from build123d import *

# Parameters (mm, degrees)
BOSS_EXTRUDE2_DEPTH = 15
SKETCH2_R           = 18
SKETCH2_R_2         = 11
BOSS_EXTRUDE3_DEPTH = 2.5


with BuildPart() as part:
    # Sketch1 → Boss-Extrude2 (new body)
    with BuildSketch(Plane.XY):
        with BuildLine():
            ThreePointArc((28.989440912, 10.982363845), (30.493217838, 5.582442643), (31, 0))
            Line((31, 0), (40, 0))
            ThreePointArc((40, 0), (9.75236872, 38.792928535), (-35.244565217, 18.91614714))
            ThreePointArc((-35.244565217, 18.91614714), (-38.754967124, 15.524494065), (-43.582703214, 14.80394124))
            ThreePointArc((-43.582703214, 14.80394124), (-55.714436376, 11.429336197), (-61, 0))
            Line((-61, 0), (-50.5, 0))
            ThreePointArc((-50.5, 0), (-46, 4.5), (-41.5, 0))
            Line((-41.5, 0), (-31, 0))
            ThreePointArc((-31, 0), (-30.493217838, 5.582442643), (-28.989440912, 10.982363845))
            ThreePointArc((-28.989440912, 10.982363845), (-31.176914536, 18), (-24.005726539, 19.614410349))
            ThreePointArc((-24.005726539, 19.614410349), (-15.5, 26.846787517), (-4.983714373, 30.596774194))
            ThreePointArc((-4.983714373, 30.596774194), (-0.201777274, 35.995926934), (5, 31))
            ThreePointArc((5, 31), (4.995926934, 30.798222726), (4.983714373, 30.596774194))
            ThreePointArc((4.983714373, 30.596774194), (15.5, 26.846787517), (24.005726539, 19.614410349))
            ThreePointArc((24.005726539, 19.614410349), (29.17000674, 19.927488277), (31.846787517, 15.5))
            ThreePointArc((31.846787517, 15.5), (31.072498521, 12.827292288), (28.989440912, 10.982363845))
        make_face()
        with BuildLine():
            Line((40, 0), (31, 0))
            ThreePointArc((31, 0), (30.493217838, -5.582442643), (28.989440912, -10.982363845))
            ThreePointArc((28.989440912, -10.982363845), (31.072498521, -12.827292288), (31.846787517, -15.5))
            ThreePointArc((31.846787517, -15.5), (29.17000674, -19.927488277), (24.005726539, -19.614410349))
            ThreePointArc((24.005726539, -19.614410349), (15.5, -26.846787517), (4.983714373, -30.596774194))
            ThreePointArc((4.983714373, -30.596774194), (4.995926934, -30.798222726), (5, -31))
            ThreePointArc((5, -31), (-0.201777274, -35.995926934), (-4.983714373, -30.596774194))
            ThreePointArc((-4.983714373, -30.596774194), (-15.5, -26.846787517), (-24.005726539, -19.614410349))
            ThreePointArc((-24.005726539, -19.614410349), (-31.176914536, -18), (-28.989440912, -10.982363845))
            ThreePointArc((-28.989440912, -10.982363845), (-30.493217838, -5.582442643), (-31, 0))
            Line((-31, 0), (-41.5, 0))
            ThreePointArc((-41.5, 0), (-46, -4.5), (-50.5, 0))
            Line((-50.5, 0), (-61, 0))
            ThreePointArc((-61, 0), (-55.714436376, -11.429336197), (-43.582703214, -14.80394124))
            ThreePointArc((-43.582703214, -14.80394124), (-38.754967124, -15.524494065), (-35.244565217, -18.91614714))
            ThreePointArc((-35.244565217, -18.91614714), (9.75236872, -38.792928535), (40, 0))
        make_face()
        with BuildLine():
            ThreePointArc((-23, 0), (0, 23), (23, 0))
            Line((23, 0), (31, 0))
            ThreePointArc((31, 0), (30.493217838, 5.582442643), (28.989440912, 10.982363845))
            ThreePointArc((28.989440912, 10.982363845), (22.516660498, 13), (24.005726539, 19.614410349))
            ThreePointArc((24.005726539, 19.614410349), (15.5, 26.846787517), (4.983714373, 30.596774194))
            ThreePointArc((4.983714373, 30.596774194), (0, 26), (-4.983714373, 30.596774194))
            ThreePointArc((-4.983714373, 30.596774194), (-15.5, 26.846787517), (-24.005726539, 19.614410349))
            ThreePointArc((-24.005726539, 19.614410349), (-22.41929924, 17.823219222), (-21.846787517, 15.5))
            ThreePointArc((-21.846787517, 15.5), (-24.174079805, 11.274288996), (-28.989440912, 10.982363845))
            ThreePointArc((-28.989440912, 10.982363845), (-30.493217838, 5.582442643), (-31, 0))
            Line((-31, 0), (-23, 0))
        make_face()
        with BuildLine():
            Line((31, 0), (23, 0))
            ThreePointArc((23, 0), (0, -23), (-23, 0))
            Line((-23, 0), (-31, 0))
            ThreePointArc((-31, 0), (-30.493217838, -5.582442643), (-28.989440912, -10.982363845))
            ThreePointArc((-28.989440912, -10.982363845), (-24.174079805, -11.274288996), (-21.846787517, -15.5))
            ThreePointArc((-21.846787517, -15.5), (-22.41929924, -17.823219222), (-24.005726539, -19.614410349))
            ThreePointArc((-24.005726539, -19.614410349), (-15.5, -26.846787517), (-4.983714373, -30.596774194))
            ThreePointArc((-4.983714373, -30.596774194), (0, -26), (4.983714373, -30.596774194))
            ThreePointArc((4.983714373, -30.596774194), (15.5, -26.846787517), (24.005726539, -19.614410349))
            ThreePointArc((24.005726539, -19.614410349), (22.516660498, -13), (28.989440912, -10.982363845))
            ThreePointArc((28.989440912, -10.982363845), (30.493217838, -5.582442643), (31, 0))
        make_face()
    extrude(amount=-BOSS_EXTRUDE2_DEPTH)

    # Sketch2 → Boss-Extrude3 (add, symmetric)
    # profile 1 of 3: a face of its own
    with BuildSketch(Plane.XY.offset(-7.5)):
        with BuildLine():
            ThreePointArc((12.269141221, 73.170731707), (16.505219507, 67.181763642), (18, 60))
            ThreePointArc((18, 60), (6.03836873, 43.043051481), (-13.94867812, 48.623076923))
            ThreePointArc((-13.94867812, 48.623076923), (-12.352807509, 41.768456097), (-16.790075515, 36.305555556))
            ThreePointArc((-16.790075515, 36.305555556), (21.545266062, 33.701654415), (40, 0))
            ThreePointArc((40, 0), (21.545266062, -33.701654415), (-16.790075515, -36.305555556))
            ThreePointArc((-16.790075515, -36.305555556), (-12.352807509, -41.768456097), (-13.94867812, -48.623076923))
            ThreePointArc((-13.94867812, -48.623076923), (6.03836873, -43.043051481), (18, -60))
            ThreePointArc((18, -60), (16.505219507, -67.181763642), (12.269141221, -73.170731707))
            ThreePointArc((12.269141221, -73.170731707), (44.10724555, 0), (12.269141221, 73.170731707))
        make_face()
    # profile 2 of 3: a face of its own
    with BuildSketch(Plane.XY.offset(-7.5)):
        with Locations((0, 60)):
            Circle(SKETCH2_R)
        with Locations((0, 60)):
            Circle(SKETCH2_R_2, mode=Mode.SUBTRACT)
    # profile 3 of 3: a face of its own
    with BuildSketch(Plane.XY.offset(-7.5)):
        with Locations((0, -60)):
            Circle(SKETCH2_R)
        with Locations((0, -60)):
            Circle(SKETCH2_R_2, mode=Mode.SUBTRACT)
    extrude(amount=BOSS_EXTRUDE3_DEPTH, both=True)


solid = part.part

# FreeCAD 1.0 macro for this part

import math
import FreeCAD as App
import Part
import Sketcher

doc = App.newDocument("Part")
body = doc.addObject("PartDesign::Body", "Body")

sketch1 = body.newObject("Sketcher::SketchObject", "Sketch")
sketch1.AttachmentSupport = (doc.getObject("XY_Plane"), [""])
sketch1.MapMode = "FlatFace"
sketch1.addGeometry([
    Part.ArcOfCircle(Part.Circle(App.Vector(0, 0, 0), App.Vector(0, 0, 1), 40), math.radians(0), math.radians(151.777054)),
    Part.ArcOfCircle(Part.Circle(App.Vector(-42.293478, 22.699377, 0), App.Vector(0, 0, 1), 8), math.radians(-99.273834), math.radians(-28.222946)),
    Part.ArcOfCircle(Part.Circle(App.Vector(-46, 0, 0), App.Vector(0, 0, 1), 15), math.radians(80.726166), math.radians(180)),
    Part.ArcOfCircle(Part.Circle(App.Vector(-46, 0, 0), App.Vector(0, 0, 1), 15), math.radians(180), math.radians(279.273834)),
    Part.ArcOfCircle(Part.Circle(App.Vector(-42.293478, -22.699377, 0), App.Vector(0, 0, 1), 8), math.radians(28.222946), math.radians(99.273834)),
    Part.ArcOfCircle(Part.Circle(App.Vector(0, 0, 0), App.Vector(0, 0, 1), 40), math.radians(-151.777054), math.radians(0)),
    Part.ArcOfCircle(Part.Circle(App.Vector(26.846788, -15.5, 0), App.Vector(0, 0, 1), 5), math.radians(0), math.radians(64.625651)),
    Part.ArcOfCircle(Part.Circle(App.Vector(26.846788, -15.5, 0), App.Vector(0, 0, 1), 5), math.radians(-124.625651), math.radians(0)),
    Part.ArcOfCircle(Part.Circle(App.Vector(26.846788, -15.5, 0), App.Vector(0, 0, 1), 5), math.radians(64.625651), math.radians(235.374349)),
    Part.ArcOfCircle(Part.Circle(App.Vector(0, -31, 0), App.Vector(0, 0, 1), 5), math.radians(0), math.radians(4.62565)),
    Part.ArcOfCircle(Part.Circle(App.Vector(0, -31, 0), App.Vector(0, 0, 1), 5), math.radians(175.374349), math.radians(360)),
    Part.ArcOfCircle(Part.Circle(App.Vector(0, -31, 0), App.Vector(0, 0, 1), 5), math.radians(4.625651), math.radians(175.374349)),
    Part.ArcOfCircle(Part.Circle(App.Vector(-26.846788, -15.5, 0), App.Vector(0, 0, 1), 5), math.radians(115.374349), math.radians(304.625651)),
    Part.ArcOfCircle(Part.Circle(App.Vector(-26.846788, -15.5, 0), App.Vector(0, 0, 1), 5), math.radians(0), math.radians(115.374349)),
    Part.ArcOfCircle(Part.Circle(App.Vector(-26.846788, -15.5, 0), App.Vector(0, 0, 1), 5), math.radians(-55.374349), math.radians(0)),
    Part.Circle(App.Vector(0, 0, 0), App.Vector(0, 0, 1), 23),
    Part.ArcOfCircle(Part.Circle(App.Vector(-26.846788, 15.5, 0), App.Vector(0, 0, 1), 5), math.radians(55.374349), math.radians(244.625651)),
    Part.ArcOfCircle(Part.Circle(App.Vector(-26.846788, 15.5, 0), App.Vector(0, 0, 1), 5), math.radians(0), math.radians(55.374349)),
    Part.ArcOfCircle(Part.Circle(App.Vector(-26.846788, 15.5, 0), App.Vector(0, 0, 1), 5), math.radians(-115.374349), math.radians(0)),
    Part.ArcOfCircle(Part.Circle(App.Vector(0, 31, 0), App.Vector(0, 0, 1), 5), math.radians(0), math.radians(184.625651)),
    Part.ArcOfCircle(Part.Circle(App.Vector(0, 31, 0), App.Vector(0, 0, 1), 5), math.radians(-4.62565), math.radians(0)),
    Part.ArcOfCircle(Part.Circle(App.Vector(0, 31, 0), App.Vector(0, 0, 1), 5), math.radians(-175.374349), math.radians(-4.625651)),
    Part.ArcOfCircle(Part.Circle(App.Vector(26.846788, 15.5, 0), App.Vector(0, 0, 1), 5), math.radians(0), math.radians(124.625651)),
    Part.ArcOfCircle(Part.Circle(App.Vector(26.846788, 15.5, 0), App.Vector(0, 0, 1), 5), math.radians(-64.625651), math.radians(0)),
    Part.ArcOfCircle(Part.Circle(App.Vector(26.846788, 15.5, 0), App.Vector(0, 0, 1), 5), math.radians(124.625651), math.radians(295.374349)),
    Part.Circle(App.Vector(-46, 0, 0), App.Vector(0, 0, 1), 4.5),
], False)
sketch1.addConstraint([
    Sketcher.Constraint("Tangent", 0, 2, 1, 2),
    Sketcher.Constraint("Tangent", 1, 1, 2, 1),
    Sketcher.Constraint("Tangent", 2, 2, 3, 1),
    Sketcher.Constraint("Tangent", 3, 2, 4, 2),
    Sketcher.Constraint("Tangent", 4, 1, 5, 1),
    Sketcher.Constraint("Tangent", 5, 2, 0, 1),
    Sketcher.Constraint("Tangent", 6, 1, 7, 2),
    Sketcher.Constraint("Tangent", 7, 1, 8, 2),
    Sketcher.Constraint("Tangent", 8, 1, 6, 2),
    Sketcher.Constraint("Tangent", 9, 1, 10, 2),
    Sketcher.Constraint("Tangent", 10, 1, 11, 2),
    Sketcher.Constraint("Tangent", 11, 1, 9, 2),
    Sketcher.Constraint("Tangent", 12, 1, 13, 2),
    Sketcher.Constraint("Tangent", 13, 1, 14, 2),
    Sketcher.Constraint("Tangent", 14, 1, 12, 2),
    Sketcher.Constraint("Tangent", 16, 1, 17, 2),
    Sketcher.Constraint("Tangent", 17, 1, 18, 2),
    Sketcher.Constraint("Tangent", 18, 1, 16, 2),
    Sketcher.Constraint("Tangent", 19, 1, 20, 2),
    Sketcher.Constraint("Tangent", 20, 1, 21, 2),
    Sketcher.Constraint("Tangent", 21, 1, 19, 2),
    Sketcher.Constraint("Tangent", 22, 1, 23, 2),
    Sketcher.Constraint("Tangent", 23, 1, 24, 2),
    Sketcher.Constraint("Tangent", 24, 1, 22, 2),
    Sketcher.Constraint("Coincident", 0, 3, -1, 1),
    Sketcher.Constraint("Coincident", 15, 3, -1, 1),
    Sketcher.Constraint("Coincident", 25, 3, 2, 3),
    Sketcher.Constraint("Equal", 2, 3),
    Sketcher.Constraint("Equal", 1, 4),
    Sketcher.Constraint("Equal", 0, 5),
    Sketcher.Constraint("Equal", 8, 9),
    Sketcher.Constraint("Equal", 11, 12),
    Sketcher.Constraint("Equal", 14, 16),
    Sketcher.Constraint("Equal", 18, 19),
    Sketcher.Constraint("Equal", 21, 22),
    Sketcher.Constraint("Symmetric", 6, 3, 16, 3, -1, 1),
    Sketcher.Constraint("Symmetric", 9, 3, 19, 3, -1, 1),
    Sketcher.Constraint("Symmetric", 12, 3, 22, 3, -1, 1),
    Sketcher.Constraint("Symmetric", 6, 3, 12, 3, -2),
    Sketcher.Constraint("Symmetric", 10, 1, 11, 1, -2),
    Sketcher.Constraint("PointOnObject", 2, 3, -1),
    Sketcher.Constraint("PointOnObject", 2, 2, -1),
    Sketcher.Constraint("PointOnObject", 5, 2, -1),
    Sketcher.Constraint("Horizontal", 14, 3, 6, 1),
    Sketcher.Constraint("Horizontal", 11, 3, 9, 1),
    Sketcher.Constraint("Horizontal", 8, 1, 12, 1),
    Sketcher.Constraint("Horizontal", 6, 1, 13, 1),
    Sketcher.Constraint("Horizontal", 7, 1, 14, 1),
    Sketcher.Constraint("Horizontal", 24, 3, 17, 1),
    Sketcher.Constraint("Horizontal", 21, 3, 19, 1),
    Sketcher.Constraint("Horizontal", 20, 1, 21, 1),
    Sketcher.Constraint("Horizontal", 17, 1, 22, 1),
    Sketcher.Constraint("Horizontal", 18, 1, 23, 1),
    Sketcher.Constraint("Horizontal", 16, 1, 24, 1),
    Sketcher.Constraint("Vertical", 14, 1, 16, 1),
    Sketcher.Constraint("Vertical", 12, 1, 18, 1),
    Sketcher.Constraint("Vertical", 11, 1, 20, 1),
    Sketcher.Constraint("Diameter", 15, 46.0),
    Sketcher.Constraint("Diameter", 25, 9.0),
    Sketcher.Constraint("Radius", 0, 40.0),
    Sketcher.Constraint("Radius", 1, 8.0),
    Sketcher.Constraint("Radius", 2, 15.0),
    Sketcher.Constraint("Radius", 6, 5.0),
    Sketcher.Constraint("DistanceX", 2, 3, -1, 1, 46.0),
    Sketcher.Constraint("DistanceY", 9, 3, -1, 1, 31.0),
    Sketcher.Constraint("DistanceY", 14, 3, 16, 3, 31.0),
    Sketcher.Constraint("DistanceY", 7, 1, -1, 1, 19.61441),
    Sketcher.Constraint("DistanceX", -1, 1, 8, 1, 28.989441),
    Sketcher.Constraint("DistanceX", 4, 3, 12, 3, 15.446691),
    Sketcher.Constraint("DistanceX", 10, 1, 11, 1, 9.967429),
])
pad1 = body.newObject("PartDesign::Pad", "Pad")
pad1.Profile = sketch1
pad1.Length = 15
pad1.Reversed = True

sketch2 = body.newObject("Sketcher::SketchObject", "Sketch001")
sketch2.AttachmentSupport = (doc.getObject("XY_Plane"), [""])
sketch2.MapMode = "FlatFace"
sketch2.AttachmentOffset = App.Placement(App.Vector(0, 0, -7.5), App.Rotation())
sketch2.addGeometry([
    Part.ArcOfCircle(Part.Circle(App.Vector(-20.148091, 43.566667, 0), App.Vector(0, 0, 1), 8), math.radians(-65.181076), math.radians(39.201625)),
    Part.ArcOfCircle(Part.Circle(App.Vector(0, 0, 0), App.Vector(0, 0, 1), 40), math.radians(0), math.radians(114.818924)),
    Part.ArcOfCircle(Part.Circle(App.Vector(0, 0, 0), App.Vector(0, 0, 1), 40), math.radians(-114.818924), math.radians(0)),
    Part.ArcOfCircle(Part.Circle(App.Vector(-20.148091, -43.566667, 0), App.Vector(0, 0, 1), 8), math.radians(-39.201625), math.radians(65.181076)),
    Part.ArcOfCircle(Part.Circle(App.Vector(0, -60, 0), App.Vector(0, 0, 1), 18), math.radians(140.798375), math.radians(312.970284)),
    Part.ArcOfCircle(Part.Circle(App.Vector(-55.892754, 0, 0), App.Vector(0, 0, 1), 100), math.radians(-47.029716), math.radians(47.029716)),
    Part.ArcOfCircle(Part.Circle(App.Vector(0, 60, 0), App.Vector(0, 0, 1), 18), math.radians(47.029716), math.radians(219.201625)),
    Part.Circle(App.Vector(0, 60, 0), App.Vector(0, 0, 1), 11),
    Part.Circle(App.Vector(0, -60, 0), App.Vector(0, 0, 1), 11),
], False)
sketch2.addConstraint([
    Sketcher.Constraint("Tangent", 0, 1, 1, 2),
    Sketcher.Constraint("Tangent", 1, 1, 2, 2),
    Sketcher.Constraint("Tangent", 2, 1, 3, 2),
    Sketcher.Constraint("Tangent", 3, 1, 4, 1),
    Sketcher.Constraint("Tangent", 4, 2, 5, 1),
    Sketcher.Constraint("Tangent", 5, 2, 6, 1),
    Sketcher.Constraint("Tangent", 6, 2, 0, 2),
    Sketcher.Constraint("Coincident", 1, 3, -1, 1),
    Sketcher.Constraint("Coincident", 7, 3, 6, 3),
    Sketcher.Constraint("Coincident", 8, 3, 4, 3),
    Sketcher.Constraint("Equal", 1, 2),
    Sketcher.Constraint("Equal", 0, 3),
    Sketcher.Constraint("Equal", 4, 6),
    Sketcher.Constraint("Equal", 7, 8),
    Sketcher.Constraint("Symmetric", 4, 3, 6, 3, -1, 1),
    Sketcher.Constraint("PointOnObject", 4, 3, -2),
    Sketcher.Constraint("PointOnObject", 1, 1, -1),
    Sketcher.Constraint("Diameter", 7, 22.0),
    Sketcher.Constraint("Radius", 0, 8.0),
    Sketcher.Constraint("Radius", 1, 40.0),
    Sketcher.Constraint("Radius", 4, 18.0),
    Sketcher.Constraint("Radius", 5, 100.0),
    Sketcher.Constraint("DistanceY", 4, 3, -1, 1, 60.0),
])
pad2 = body.newObject("PartDesign::Pad", "Pad001")
pad2.Profile = sketch2
pad2.Length = 5
pad2.Midplane = True

doc.recompute()
